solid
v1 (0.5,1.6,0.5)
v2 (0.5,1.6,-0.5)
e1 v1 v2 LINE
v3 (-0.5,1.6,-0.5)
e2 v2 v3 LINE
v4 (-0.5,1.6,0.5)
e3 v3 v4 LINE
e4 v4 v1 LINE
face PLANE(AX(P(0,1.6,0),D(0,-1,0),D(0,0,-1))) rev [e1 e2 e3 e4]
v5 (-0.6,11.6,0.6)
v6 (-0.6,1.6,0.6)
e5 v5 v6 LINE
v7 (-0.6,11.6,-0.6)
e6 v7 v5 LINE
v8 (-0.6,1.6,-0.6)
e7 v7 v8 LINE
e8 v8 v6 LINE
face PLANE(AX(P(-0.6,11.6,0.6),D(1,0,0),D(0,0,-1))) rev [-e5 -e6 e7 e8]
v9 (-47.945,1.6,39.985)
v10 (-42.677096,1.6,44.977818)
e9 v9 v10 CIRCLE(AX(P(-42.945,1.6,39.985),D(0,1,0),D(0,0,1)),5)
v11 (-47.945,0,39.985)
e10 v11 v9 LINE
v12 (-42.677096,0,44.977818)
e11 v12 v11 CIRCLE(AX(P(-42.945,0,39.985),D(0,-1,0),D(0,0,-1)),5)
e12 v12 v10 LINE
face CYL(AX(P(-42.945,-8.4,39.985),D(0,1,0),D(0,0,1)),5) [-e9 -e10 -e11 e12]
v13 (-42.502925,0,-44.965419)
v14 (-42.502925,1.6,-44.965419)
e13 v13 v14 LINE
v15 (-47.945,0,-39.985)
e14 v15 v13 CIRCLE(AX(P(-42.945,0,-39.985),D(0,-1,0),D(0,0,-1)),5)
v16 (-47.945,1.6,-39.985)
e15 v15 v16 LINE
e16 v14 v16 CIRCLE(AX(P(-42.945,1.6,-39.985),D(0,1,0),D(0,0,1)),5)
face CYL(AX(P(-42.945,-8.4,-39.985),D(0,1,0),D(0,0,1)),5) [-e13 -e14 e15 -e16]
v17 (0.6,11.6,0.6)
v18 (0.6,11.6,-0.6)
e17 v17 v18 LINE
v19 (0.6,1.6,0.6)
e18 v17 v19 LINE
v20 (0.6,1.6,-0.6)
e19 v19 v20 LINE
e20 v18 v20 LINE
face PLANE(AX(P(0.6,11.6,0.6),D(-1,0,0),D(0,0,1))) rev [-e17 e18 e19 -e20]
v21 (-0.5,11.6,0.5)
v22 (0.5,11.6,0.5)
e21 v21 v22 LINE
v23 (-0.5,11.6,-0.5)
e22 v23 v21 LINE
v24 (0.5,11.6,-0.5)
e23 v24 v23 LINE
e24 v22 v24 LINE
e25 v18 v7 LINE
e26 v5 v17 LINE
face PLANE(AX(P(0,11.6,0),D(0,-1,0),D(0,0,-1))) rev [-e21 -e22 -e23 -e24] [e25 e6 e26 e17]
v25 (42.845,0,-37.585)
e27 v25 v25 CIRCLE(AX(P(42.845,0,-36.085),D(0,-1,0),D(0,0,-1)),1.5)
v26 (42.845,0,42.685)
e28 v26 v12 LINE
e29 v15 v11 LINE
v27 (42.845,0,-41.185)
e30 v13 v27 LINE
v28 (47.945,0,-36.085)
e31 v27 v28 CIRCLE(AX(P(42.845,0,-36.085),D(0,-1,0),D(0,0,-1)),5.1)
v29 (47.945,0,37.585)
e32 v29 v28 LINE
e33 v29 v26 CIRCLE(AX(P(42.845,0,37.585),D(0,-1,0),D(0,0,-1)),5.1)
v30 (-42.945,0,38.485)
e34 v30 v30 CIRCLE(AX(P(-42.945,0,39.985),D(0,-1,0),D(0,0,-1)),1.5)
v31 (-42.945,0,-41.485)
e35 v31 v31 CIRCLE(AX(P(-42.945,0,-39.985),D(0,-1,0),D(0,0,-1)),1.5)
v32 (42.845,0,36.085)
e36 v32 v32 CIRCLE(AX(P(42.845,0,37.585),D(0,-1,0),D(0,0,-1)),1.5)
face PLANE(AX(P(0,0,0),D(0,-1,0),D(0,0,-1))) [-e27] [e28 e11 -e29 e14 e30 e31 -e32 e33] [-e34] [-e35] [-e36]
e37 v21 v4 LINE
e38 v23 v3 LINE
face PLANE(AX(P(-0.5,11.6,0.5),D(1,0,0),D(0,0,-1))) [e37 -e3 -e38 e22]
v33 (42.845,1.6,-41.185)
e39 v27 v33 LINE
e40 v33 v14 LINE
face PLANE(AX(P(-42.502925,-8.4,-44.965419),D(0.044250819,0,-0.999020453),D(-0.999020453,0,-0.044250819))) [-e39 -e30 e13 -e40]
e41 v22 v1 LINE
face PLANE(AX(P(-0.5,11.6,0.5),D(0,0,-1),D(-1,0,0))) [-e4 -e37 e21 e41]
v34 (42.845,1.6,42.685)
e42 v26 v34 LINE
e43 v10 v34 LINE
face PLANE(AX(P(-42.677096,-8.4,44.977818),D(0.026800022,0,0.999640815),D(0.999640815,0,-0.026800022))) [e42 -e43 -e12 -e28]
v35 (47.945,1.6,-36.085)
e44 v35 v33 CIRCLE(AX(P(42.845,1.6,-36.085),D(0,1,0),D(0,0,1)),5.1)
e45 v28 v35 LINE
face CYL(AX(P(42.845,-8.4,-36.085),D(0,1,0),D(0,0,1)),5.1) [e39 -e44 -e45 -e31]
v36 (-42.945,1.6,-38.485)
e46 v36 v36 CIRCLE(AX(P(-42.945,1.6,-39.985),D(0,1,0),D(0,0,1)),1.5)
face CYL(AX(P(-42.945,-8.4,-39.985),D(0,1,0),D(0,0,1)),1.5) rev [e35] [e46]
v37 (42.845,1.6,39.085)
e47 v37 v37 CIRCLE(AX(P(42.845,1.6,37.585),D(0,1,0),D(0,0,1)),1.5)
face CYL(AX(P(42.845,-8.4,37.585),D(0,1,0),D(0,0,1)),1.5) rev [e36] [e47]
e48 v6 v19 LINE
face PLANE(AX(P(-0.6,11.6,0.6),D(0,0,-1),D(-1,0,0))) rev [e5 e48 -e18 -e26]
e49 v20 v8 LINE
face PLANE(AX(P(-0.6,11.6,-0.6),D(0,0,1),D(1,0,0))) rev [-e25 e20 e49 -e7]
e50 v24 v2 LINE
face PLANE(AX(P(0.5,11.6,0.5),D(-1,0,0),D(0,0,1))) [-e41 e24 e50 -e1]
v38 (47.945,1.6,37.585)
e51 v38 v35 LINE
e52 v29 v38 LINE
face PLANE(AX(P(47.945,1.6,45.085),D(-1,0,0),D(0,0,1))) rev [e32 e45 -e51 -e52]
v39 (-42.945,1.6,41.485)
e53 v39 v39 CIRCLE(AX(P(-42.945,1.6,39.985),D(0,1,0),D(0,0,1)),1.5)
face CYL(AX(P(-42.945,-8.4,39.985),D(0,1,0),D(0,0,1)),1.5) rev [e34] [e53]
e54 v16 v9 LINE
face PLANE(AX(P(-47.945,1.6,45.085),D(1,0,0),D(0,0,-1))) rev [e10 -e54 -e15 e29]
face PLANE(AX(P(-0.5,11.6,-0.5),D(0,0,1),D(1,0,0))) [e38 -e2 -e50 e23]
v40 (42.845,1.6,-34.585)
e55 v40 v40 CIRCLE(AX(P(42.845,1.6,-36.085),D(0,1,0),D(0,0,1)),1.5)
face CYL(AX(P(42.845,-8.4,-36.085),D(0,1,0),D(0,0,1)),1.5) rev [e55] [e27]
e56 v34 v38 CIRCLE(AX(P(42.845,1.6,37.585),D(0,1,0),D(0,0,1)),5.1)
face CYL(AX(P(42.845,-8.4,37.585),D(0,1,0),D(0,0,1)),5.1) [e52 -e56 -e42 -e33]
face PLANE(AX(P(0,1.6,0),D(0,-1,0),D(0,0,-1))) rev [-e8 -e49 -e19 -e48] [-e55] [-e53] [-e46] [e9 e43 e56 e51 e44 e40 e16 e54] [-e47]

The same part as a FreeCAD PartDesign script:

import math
import FreeCAD as App
import Part
import Sketcher
from FreeCAD import Vector


def add_polygon(sketch, points):
    """Adds a closed chain of lines whose ends are joined by coincident constraints."""
    first, n = sketch.GeometryCount, len(points)
    for a, b in zip(points, points[1:] + points[:1]):
        sketch.addGeometry(Part.LineSegment(App.Vector(*a, 0), App.Vector(*b, 0)), False)
    for i in range(n):
        sketch.addConstraint(Sketcher.Constraint("Coincident", first + i, 2, first + (i + 1) % n, 1))

doc = App.newDocument("Part")
params = doc.addObject("Spreadsheet::Sheet", "Params")
for row, (alias, value) in enumerate([
    ("sketch1_width", "95.89 mm"),
    ("sketch1_height", "90.17 mm"),
    ("pad1_length", "1.6 mm"),
    ("sketch2_diameter", "3 mm"),
    ("pocket1_length", "10 mm"),
    ("sketch3_width", "1 mm"),
    ("sketch3_width2", "1.2 mm"),
    ("pad2_length", "10 mm"),
    ("sketch4_radius", "5 mm"),
    ("sketch4_radius2", "5.1 mm"),
    ("sketch4_height", "79.97 mm"),
    ("sketch4_height2", "73.67 mm"),
    ("pocket2_length", "10 mm"),
], start=1):
    params.set(f"A{row}", alias)
    params.set(f"B{row}", "=" + value)
    params.setAlias(f"B{row}", alias)

body = doc.addObject("PartDesign::Body", "Body")

# Sketch on XZ plane
sketch1 = doc.addObject("Sketcher::SketchObject", "Sketch")
body.addObject(sketch1)
sketch1.AttachmentSupport = (doc.XZ_Plane, [""])
sketch1.MapMode = "FlatFace"
add_polygon(sketch1, [(-48, -45), (-48, 45), (48, 45), (48, -45)])  # lines 0-3
sketch1.addConstraint([
    Sketcher.Constraint("Vertical", 0),
    Sketcher.Constraint("Horizontal", 1),
    Sketcher.Constraint("Vertical", 2),
    Sketcher.Constraint("Horizontal", 3),
    Sketcher.Constraint("Symmetric", 0, 2, 2, 2, -1, 1),
    Sketcher.Constraint("DistanceX", 1, 1, 1, 2, 95.89),
    Sketcher.Constraint("DistanceY", 0, 1, 0, 2, 90.17),
])
sketch1.setExpression("Constraints[9]", "Params.sketch1_width")
sketch1.setExpression("Constraints[10]", "Params.sketch1_height")
pad1 = doc.addObject("PartDesign::Pad", "Pad")
body.addObject(pad1)
pad1.Profile = sketch1
pad1.setExpression("Length", "Params.pad1_length")
pad1.Reversed = True

# Sketch on XZ plane
sketch2 = doc.addObject("Sketcher::SketchObject", "Sketch001")
body.addObject(sketch2)
sketch2.AttachmentSupport = (doc.XZ_Plane, [""])
sketch2.MapMode = "FlatFace"
sketch2.AttachmentOffset = App.Placement(Vector(0, 0, -1.6), App.Rotation())
sketch2.addGeometry([
    Part.Circle(Vector(42.8, -36.1, 0), Vector(0, 0, 1), 1.5),
    Part.Circle(Vector(42.8, 37.6, 0), Vector(0, 0, 1), 1.5),
    Part.Circle(Vector(-42.9, 40, 0), Vector(0, 0, 1), 1.5),
    Part.Circle(Vector(-42.9, -40, 0), Vector(0, 0, 1), 1.5),
], False)
sketch2.addConstraint([
    Sketcher.Constraint("Equal", 0, 1),
    Sketcher.Constraint("Equal", 1, 2),
    Sketcher.Constraint("Equal", 2, 3),
    Sketcher.Constraint("Symmetric", 2, 3, 3, 3, -1),
    Sketcher.Constraint("Vertical", 0, 3, 1, 3),
    Sketcher.Constraint("Diameter", 0, 3.0),
    Sketcher.Constraint("DistanceY", 1, 3, 2, 3, 2.4),
    Sketcher.Constraint("DistanceY", 3, 3, 0, 3, 3.9),
    Sketcher.Constraint("DistanceY", 0, 3, 1, 3, 73.67),
    Sketcher.Constraint("DistanceX", 2, 3, 1, 3, 85.79),
    Sketcher.Constraint("DistanceX", -1, 1, 0, 3, 42.845),
])
sketch2.setExpression("Constraints[5]", "Params.sketch2_diameter")
pocket1 = doc.addObject("PartDesign::Pocket", "Pocket")
body.addObject(pocket1)
pocket1.Profile = sketch2
pocket1.setExpression("Length", "Params.pocket1_length")
pocket1.Reversed = True

# Sketch on XZ plane
sketch3 = doc.addObject("Sketcher::SketchObject", "Sketch002")
body.addObject(sketch3)
sketch3.AttachmentSupport = (doc.XZ_Plane, [""])
sketch3.MapMode = "FlatFace"
sketch3.AttachmentOffset = App.Placement(Vector(0, 0, -1.6), App.Rotation())
add_polygon(sketch3, [(-0.6, -0.6), (-0.6, 0.6), (0.6, 0.6), (0.6, -0.6)])  # lines 0-3
add_polygon(sketch3, [(0.5, 0.5), (-0.5, 0.5), (-0.5, -0.5), (0.5, -0.5)])  # lines 4-7
sketch3.addConstraint([
    Sketcher.Constraint("Vertical", 0),
    Sketcher.Constraint("Horizontal", 1),
    Sketcher.Constraint("Vertical", 2),
    Sketcher.Constraint("Horizontal", 3),
    Sketcher.Constraint("Horizontal", 4),
    Sketcher.Constraint("Vertical", 5),
    Sketcher.Constraint("Horizontal", 6),
    Sketcher.Constraint("Vertical", 7),
    Sketcher.Constraint("Symmetric", 0, 2, 2, 2, -1, 1),
    Sketcher.Constraint("Symmetric", 4, 2, 6, 2, -1, 1),
    Sketcher.Constraint("Equal", 3, 0),
    Sketcher.Constraint("Equal", 6, 5),
    Sketcher.Constraint("DistanceX", 4, 2, 4, 1, 1.0),
    Sketcher.Constraint("DistanceX", 1, 1, 1, 2, 1.2),
])
sketch3.setExpression("Constraints[20]", "Params.sketch3_width")
sketch3.setExpression("Constraints[21]", "Params.sketch3_width2")
pad2 = doc.addObject("PartDesign::Pad", "Pad001")
body.addObject(pad2)
pad2.Profile = sketch3
pad2.setExpression("Length", "Params.pad2_length")
pad2.Reversed = True

# Sketch on XZ plane
sketch4 = doc.addObject("Sketcher::SketchObject", "Sketch003")
body.addObject(sketch4)
sketch4.AttachmentSupport = (doc.XZ_Plane, [""])
sketch4.MapMode = "FlatFace"
sketch4.AttachmentOffset = App.Placement(Vector(0, 0, -1.6), App.Rotation())
add_polygon(sketch4, [(-62.2, -59.3), (-62.2, 59.3), (62.2, 59.3), (62.2, -59.3)])  # lines 0-3
sketch4.addGeometry(Part.LineSegment(Vector(42.8, 42.7, 0), Vector(-42.7, 45, 0)), False)  # 4
sketch4.addGeometry(Part.ArcOfCircle(Part.Circle(Vector(-42.9, 40, 0), Vector(0, 0, 1), 5), math.radians(87), math.radians(180)), False)  # 5
sketch4.addGeometry(Part.LineSegment(Vector(-47.9, 40, 0), Vector(-47.9, -40, 0)), False)  # 6
sketch4.addGeometry(Part.ArcOfCircle(Part.Circle(Vector(-42.9, -40, 0), Vector(0, 0, 1), 5), math.radians(180), math.radians(275)), False)  # 7
sketch4.addGeometry(Part.LineSegment(Vector(-42.5, -45, 0), Vector(42.8, -41.2, 0)), False)  # 8
sketch4.addGeometry(Part.ArcOfCircle(Part.Circle(Vector(42.8, -36.1, 0), Vector(0, 0, 1), 5.1), math.radians(-90), math.radians(0)), False)  # 9
sketch4.addGeometry(Part.LineSegment(Vector(47.9, -36.1, 0), Vector(47.9, 37.6, 0)), False)  # 10
sketch4.addGeometry(Part.ArcOfCircle(Part.Circle(Vector(42.8, 37.6, 0), Vector(0, 0, 1), 5.1), math.radians(0), math.radians(90)), False)  # 11
sketch4.addConstraint([
    Sketcher.Constraint("Coincident", 4, 2, 5, 1),
    Sketcher.Constraint("Tangent", 5, 2, 6, 1),
    Sketcher.Constraint("Tangent", 6, 2, 7, 1),
    Sketcher.Constraint("Coincident", 7, 2, 8, 1),
    Sketcher.Constraint("Coincident", 8, 2, 9, 1),
    Sketcher.Constraint("Tangent", 9, 2, 10, 1),
    Sketcher.Constraint("Tangent", 10, 2, 11, 1),
    Sketcher.Constraint("Coincident", 11, 2, 4, 1),
    Sketcher.Constraint("Vertical", 0),
    Sketcher.Constraint("Horizontal", 1),
    Sketcher.Constraint("Vertical", 2),
    Sketcher.Constraint("Horizontal", 3),
    Sketcher.Constraint("Vertical", 6),
    Sketcher.Constraint("Vertical", 10),
    Sketcher.Constraint("Equal", 5, 7),
    Sketcher.Constraint("Equal", 9, 11),
    Sketcher.Constraint("Symmetric", 0, 2, 2, 2, -1, 1),
    Sketcher.Constraint("Vertical", 11, 3, 8, 2),
    Sketcher.Constraint("Vertical", 8, 2, 11, 2),
    Sketcher.Constraint("Radius", 5, 5.0),
    Sketcher.Constraint("Radius", 9, 5.1),
    Sketcher.Constraint("DistanceY", 6, 2, 6, 1, 79.97),
    Sketcher.Constraint("DistanceY", 10, 1, 10, 2, 73.67),
    Sketcher.Constraint("DistanceY", 7, 3, 9, 3, 3.9),
    Sketcher.Constraint("DistanceX", 1, 1, 1, 2, 124.318),
    Sketcher.Constraint("DistanceY", 0, 1, 0, 2, 118.598),
    Sketcher.Constraint("DistanceX", 7, 3, 9, 3, 85.79),
    Sketcher.Constraint("DistanceX", 5, 3, -1, 1, 42.945),
    Sketcher.Constraint("DistanceY", -1, 1, 5, 3, 39.985),
    Sketcher.Constraint("Distance", 8, 85.43161),
    Sketcher.Constraint("Distance", 4, 85.552825),
])
sketch4.setExpression("Constraints[23]", "Params.sketch4_radius")
sketch4.setExpression("Constraints[24]", "Params.sketch4_radius2")
sketch4.setExpression("Constraints[25]", "Params.sketch4_height")
sketch4.setExpression("Constraints[26]", "Params.sketch4_height2")
pocket2 = doc.addObject("PartDesign::Pocket", "Pocket001")
body.addObject(pocket2)
pocket2.Profile = sketch4
pocket2.setExpression("Length", "Params.pocket2_length")
pocket2.Reversed = True

doc.recompute()
